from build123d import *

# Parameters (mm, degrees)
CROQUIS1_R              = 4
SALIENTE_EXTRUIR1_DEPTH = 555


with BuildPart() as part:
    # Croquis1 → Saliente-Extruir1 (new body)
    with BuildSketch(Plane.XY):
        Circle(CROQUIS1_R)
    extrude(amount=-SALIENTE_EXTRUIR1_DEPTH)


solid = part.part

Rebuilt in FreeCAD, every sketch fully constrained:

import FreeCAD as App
import Part
import Sketcher

doc = App.newDocument("Part")
body = doc.addObject("PartDesign::Body", "Body")

# Sketch on XY plane
sketch1 = body.newObject("Sketcher::SketchObject", "Sketch")
sketch1.AttachmentSupport = (doc.getObject("XY_Plane"), [""])
sketch1.MapMode = "FlatFace"
sketch1.addGeometry(Part.Circle(App.Vector(0, 0, 0), App.Vector(0, 0, 1), 4), False)
sketch1.addConstraint([
    Sketcher.Constraint("Coincident", 0, 3, -1, 1),
    Sketcher.Constraint("Diameter", 0, 8.0),
])
pad1 = body.newObject("PartDesign::Pad", "Pad")
pad1.Profile = sketch1
pad1.Length = 555
pad1.Reversed = True

doc.recompute()
